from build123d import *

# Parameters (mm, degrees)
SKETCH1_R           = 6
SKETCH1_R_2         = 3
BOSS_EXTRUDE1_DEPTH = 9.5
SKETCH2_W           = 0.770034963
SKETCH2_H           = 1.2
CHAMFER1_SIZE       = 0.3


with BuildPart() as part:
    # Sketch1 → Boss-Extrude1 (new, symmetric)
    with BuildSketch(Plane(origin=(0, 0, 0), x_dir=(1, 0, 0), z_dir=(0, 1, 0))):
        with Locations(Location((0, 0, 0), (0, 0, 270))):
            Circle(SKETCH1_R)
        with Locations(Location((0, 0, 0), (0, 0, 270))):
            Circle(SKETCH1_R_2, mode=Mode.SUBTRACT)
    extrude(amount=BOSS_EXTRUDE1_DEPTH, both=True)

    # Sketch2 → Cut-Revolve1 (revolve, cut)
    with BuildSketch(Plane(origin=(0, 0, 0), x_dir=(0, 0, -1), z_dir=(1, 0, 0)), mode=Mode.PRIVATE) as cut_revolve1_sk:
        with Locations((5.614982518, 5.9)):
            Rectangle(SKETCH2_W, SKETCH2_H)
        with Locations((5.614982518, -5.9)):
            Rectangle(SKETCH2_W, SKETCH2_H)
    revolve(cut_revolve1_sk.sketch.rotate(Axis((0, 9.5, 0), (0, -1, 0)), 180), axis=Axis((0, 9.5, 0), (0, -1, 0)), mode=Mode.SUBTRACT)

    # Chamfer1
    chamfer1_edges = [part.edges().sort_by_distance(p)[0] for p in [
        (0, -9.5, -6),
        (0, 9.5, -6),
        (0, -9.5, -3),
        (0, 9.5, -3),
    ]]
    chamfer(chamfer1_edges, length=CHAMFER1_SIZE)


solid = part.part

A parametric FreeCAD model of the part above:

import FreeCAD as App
import Part
import Sketcher

V = App.Vector


def edges_at(feature, points):
    """Names of the edges that pass closest to the given points."""
    edges = feature.Shape.Edges
    near = lambda p: min(range(len(edges)), key=lambda i: edges[i].distToShape(Part.Vertex(*p))[0])
    return sorted({f"Edge{near(p) + 1}" for p in points})

doc = App.newDocument("Part")
body = doc.addObject("PartDesign::Body", "Body")

sketch1 = doc.addObject("Sketcher::SketchObject", "Sketch")
body.addObject(sketch1)
sketch1.AttachmentSupport = (doc.XZ_Plane, [""])
sketch1.MapMode = "FlatFace"
sketch1.addGeometry([
    Part.Circle(V(0, 0, 0), V(0, 0, 1), 6),
    Part.Circle(V(0, 0, 0), V(0, 0, 1), 3),
], False)
sketch1.addConstraint([
    Sketcher.Constraint("Coincident", 0, 3, -1, 1),
    Sketcher.Constraint("Coincident", 1, 3, -1, 1),
    Sketcher.Constraint("Diameter", 0, 12.0),
    Sketcher.Constraint("Diameter", 1, 6.0),
])
pad1 = doc.addObject("PartDesign::Pad", "Pad")
body.addObject(pad1)
pad1.Profile = sketch1
pad1.Length = 19
pad1.Midplane = True

sketch2 = doc.addObject("Sketcher::SketchObject", "Sketch001")
body.addObject(sketch2)
sketch2.AttachmentSupport = (doc.YZ_Plane, [""])
sketch2.MapMode = "FlatFace"
sketch2.addGeometry([
    Part.LineSegment(V(6.5, -5.2, 0), V(5.3, -5.2, 0)),
    Part.LineSegment(V(5.3, -5.2, 0), V(5.3, -6, 0)),
    Part.LineSegment(V(5.3, -6, 0), V(6.5, -6, 0)),
    Part.LineSegment(V(6.5, -6, 0), V(6.5, -5.2, 0)),
    Part.LineSegment(V(-5.3, -5.2, 0), V(-6.5, -5.2, 0)),
    Part.LineSegment(V(-6.5, -5.2, 0), V(-6.5, -6, 0)),
    Part.LineSegment(V(-6.5, -6, 0), V(-5.3, -6, 0)),
    Part.LineSegment(V(-5.3, -6, 0), V(-5.3, -5.2, 0)),
], False)
sketch2.addConstraint([
    Sketcher.Constraint("Coincident", 0, 2, 1, 1),
    Sketcher.Constraint("Coincident", 1, 2, 2, 1),
    Sketcher.Constraint("Coincident", 2, 2, 3, 1),
    Sketcher.Constraint("Coincident", 3, 2, 0, 1),
    Sketcher.Constraint("Coincident", 4, 2, 5, 1),
    Sketcher.Constraint("Coincident", 5, 2, 6, 1),
    Sketcher.Constraint("Coincident", 6, 2, 7, 1),
    Sketcher.Constraint("Coincident", 7, 2, 4, 1),
    Sketcher.Constraint("Horizontal", 0),
    Sketcher.Constraint("Vertical", 1),
    Sketcher.Constraint("Horizontal", 2),
    Sketcher.Constraint("Vertical", 3),
    Sketcher.Constraint("Horizontal", 4),
    Sketcher.Constraint("Vertical", 5),
    Sketcher.Constraint("Horizontal", 6),
    Sketcher.Constraint("Vertical", 7),
    Sketcher.Constraint("Symmetric", 3, 2, 4, 2, -2),
    Sketcher.Constraint("Symmetric", 1, 2, 6, 2, -2),
    Sketcher.Constraint("DistanceX", 0, 2, 0, 1, 1.2),
    Sketcher.Constraint("DistanceY", 1, 2, -1, 1, 6.0),
    Sketcher.Constraint("DistanceX", 4, 2, 3, 2, 13.0),
    Sketcher.Constraint("DistanceY", 1, 2, 1, 1, 0.770035),
])
groove = doc.addObject("PartDesign::Groove", "Groove")
body.addObject(groove)
groove.Profile = sketch2
groove.ReferenceAxis = (sketch2, ["H_Axis"])
groove.Angle = 360
doc.recompute()

chamfer = doc.addObject("PartDesign::Chamfer", "Chamfer")
body.addObject(chamfer)
chamfer.Base = (groove, edges_at(groove, [
    (0, -9.5, -6),
    (0, 9.5, -6),
    (0, -9.5, -3),
    (0, 9.5, -3),
]))
chamfer.Size = 0.3

doc.recompute()
